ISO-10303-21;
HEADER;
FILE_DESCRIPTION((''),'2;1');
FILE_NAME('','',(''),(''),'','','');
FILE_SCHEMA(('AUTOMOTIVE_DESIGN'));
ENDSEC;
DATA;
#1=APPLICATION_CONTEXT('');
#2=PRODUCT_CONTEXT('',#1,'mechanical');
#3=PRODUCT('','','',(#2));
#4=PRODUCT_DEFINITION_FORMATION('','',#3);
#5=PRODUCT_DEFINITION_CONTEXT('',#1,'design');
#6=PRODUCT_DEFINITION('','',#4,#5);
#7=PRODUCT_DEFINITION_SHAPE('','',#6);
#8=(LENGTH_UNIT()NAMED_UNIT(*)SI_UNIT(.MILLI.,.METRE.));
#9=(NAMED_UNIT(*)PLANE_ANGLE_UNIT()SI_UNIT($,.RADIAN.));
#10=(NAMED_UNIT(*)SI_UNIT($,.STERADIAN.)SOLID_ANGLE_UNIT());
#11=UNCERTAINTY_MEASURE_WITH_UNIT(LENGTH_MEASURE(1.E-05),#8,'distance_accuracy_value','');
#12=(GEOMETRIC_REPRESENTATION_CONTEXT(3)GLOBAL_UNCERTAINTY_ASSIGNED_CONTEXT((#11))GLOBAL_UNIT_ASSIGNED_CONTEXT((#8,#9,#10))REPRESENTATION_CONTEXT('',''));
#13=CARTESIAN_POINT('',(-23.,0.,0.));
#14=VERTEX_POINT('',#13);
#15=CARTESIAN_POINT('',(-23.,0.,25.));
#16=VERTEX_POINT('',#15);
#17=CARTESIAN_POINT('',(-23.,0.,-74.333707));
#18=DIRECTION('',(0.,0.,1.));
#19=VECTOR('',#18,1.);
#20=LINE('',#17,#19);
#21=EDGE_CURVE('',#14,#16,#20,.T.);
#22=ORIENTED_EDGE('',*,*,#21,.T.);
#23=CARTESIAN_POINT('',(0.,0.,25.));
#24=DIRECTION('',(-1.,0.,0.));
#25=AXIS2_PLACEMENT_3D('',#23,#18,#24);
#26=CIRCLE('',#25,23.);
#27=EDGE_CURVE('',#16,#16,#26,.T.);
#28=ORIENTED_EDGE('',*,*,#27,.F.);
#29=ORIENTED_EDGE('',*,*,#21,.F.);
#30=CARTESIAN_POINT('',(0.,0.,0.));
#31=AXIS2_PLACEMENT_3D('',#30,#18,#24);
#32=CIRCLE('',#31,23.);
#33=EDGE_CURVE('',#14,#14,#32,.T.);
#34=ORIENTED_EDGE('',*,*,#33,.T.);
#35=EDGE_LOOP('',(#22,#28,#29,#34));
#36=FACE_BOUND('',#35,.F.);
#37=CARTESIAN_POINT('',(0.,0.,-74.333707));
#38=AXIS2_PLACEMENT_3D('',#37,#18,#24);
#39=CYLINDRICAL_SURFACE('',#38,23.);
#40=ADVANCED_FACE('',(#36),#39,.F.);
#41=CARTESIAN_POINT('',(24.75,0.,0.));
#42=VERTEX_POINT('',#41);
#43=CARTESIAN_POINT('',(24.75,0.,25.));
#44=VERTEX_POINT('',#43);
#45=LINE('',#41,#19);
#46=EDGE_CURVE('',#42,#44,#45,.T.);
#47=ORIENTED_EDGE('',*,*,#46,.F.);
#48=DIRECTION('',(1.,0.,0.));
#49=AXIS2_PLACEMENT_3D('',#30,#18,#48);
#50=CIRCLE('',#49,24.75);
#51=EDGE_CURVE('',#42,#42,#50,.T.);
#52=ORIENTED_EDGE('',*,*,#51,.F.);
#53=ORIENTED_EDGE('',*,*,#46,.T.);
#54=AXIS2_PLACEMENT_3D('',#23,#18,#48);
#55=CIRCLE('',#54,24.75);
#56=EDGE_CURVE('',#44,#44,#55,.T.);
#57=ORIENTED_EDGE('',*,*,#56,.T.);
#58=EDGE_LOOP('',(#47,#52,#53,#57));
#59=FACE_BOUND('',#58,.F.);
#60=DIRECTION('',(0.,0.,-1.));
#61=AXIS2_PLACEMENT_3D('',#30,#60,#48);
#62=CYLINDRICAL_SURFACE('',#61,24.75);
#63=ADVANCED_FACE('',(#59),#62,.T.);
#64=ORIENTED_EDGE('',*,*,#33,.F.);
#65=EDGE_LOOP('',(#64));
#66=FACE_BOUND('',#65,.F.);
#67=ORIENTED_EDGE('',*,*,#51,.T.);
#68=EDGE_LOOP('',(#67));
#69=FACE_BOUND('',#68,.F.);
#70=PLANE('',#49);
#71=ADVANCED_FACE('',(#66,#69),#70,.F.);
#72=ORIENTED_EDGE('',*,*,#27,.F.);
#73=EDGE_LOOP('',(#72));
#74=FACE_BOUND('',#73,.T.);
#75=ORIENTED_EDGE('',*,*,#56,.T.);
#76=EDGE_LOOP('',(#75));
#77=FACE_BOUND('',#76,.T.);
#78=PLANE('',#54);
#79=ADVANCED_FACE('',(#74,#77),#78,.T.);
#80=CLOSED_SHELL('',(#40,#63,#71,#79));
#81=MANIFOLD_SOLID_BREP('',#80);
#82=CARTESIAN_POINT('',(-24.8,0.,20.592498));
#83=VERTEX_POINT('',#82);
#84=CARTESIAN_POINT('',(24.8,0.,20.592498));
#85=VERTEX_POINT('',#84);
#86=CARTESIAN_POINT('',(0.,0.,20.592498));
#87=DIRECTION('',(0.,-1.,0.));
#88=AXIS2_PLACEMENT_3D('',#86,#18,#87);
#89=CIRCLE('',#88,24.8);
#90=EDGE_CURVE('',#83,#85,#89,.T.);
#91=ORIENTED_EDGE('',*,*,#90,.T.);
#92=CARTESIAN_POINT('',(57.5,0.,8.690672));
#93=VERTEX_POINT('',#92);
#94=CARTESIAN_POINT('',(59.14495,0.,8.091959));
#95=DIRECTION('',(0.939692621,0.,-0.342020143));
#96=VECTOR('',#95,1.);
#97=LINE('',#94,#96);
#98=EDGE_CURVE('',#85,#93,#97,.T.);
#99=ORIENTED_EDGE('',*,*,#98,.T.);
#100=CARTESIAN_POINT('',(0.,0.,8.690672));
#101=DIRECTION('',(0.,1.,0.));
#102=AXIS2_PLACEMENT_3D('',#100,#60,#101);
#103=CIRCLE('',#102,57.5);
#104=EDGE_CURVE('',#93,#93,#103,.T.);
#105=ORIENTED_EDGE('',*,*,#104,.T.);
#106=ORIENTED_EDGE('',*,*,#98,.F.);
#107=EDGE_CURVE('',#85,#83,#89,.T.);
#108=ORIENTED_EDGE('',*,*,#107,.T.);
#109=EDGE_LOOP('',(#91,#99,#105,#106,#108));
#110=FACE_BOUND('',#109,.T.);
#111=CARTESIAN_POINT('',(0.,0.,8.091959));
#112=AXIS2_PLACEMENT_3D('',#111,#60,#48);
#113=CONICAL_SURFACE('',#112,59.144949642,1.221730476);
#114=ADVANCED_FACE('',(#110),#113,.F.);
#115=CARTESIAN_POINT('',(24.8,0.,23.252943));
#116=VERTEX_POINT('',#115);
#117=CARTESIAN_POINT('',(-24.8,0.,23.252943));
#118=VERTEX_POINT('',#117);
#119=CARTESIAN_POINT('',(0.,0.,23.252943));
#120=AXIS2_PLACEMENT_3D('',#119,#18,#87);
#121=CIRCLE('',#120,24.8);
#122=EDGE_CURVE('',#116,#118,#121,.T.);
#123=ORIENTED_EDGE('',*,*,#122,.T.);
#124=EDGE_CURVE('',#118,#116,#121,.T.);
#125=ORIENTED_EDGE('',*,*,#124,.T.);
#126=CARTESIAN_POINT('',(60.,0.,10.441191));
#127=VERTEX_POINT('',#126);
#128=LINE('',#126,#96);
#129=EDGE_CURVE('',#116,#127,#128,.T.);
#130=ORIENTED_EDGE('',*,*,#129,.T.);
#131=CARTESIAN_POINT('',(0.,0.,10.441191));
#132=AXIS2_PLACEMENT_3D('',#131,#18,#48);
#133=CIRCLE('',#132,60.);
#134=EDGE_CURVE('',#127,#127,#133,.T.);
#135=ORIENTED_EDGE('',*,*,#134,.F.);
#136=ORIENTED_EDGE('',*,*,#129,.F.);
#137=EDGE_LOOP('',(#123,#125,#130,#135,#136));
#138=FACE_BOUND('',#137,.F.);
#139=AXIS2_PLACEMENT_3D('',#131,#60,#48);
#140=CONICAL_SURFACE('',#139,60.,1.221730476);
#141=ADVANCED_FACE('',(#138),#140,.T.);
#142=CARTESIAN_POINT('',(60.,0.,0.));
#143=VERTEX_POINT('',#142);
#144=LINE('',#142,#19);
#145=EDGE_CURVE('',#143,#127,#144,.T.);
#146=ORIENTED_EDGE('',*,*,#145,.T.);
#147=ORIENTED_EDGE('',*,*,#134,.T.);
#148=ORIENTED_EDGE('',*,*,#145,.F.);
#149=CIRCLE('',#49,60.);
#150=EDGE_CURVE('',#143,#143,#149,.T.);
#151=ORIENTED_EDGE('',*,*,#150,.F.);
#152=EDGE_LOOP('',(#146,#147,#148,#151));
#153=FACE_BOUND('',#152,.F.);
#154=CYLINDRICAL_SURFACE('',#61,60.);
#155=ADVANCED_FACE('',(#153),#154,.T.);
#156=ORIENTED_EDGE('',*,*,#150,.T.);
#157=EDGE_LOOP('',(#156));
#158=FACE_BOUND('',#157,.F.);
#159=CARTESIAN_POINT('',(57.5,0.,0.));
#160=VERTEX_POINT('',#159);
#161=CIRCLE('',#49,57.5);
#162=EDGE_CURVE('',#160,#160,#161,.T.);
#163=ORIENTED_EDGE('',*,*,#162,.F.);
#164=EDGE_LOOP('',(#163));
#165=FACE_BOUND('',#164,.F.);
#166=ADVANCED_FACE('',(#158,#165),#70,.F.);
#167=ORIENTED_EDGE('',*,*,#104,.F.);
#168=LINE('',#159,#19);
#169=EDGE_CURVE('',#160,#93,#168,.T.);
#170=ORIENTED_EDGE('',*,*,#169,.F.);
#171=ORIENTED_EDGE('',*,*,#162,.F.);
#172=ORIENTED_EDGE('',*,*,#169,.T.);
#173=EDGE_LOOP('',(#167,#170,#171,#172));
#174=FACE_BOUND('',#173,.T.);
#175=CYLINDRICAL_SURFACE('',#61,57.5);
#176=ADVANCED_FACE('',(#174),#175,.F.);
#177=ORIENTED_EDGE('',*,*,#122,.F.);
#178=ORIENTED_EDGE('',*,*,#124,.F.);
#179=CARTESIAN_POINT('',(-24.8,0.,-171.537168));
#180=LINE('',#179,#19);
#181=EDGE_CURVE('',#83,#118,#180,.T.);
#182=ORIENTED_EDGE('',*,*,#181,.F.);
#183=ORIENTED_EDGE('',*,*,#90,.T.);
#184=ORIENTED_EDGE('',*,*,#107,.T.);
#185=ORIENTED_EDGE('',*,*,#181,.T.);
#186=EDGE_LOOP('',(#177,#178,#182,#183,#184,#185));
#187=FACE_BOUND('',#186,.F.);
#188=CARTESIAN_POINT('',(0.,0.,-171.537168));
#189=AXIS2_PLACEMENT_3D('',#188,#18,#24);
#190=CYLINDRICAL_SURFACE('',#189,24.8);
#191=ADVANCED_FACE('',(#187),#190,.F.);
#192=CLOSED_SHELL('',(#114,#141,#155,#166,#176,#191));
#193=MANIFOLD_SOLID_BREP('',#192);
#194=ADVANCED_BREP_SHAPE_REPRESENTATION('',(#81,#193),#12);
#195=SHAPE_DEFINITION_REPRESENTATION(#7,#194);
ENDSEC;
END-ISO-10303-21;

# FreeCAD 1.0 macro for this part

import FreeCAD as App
import Part
import Sketcher
Q = App.Units.Quantity


def edges_at(feature, points):
    """Names of the edges that pass closest to the given points."""
    edges = feature.Shape.Edges
    near = lambda p: min(range(len(edges)), key=lambda i: edges[i].distToShape(Part.Vertex(*p))[0])
    return sorted({f"Edge{near(p) + 1}" for p in points})


def faces_at(feature, points):
    """Names of the faces that lie closest to the given points."""
    faces = feature.Shape.Faces
    near = lambda p: min(range(len(faces)), key=lambda i: faces[i].distToShape(Part.Vertex(*p))[0])
    return sorted({f"Face{near(p) + 1}" for p in points})

doc = App.newDocument("Part")
body = doc.addObject("PartDesign::Body", "Body")

# Sketch on XY plane
sketch1 = body.newObject("Sketcher::SketchObject", "Sketch")
sketch1.AttachmentSupport = (doc.getObject("XY_Plane"), [""])
sketch1.MapMode = "FlatFace"
sketch1.addGeometry(Part.Circle(App.Vector(0, 0, 0), App.Vector(0, 0, 1), 60), False)
sketch1.addConstraint(Sketcher.Constraint("Coincident", 0, 3, -1, 1))
sketch1.addConstraint(Sketcher.Constraint("Diameter", 0, Q("120 mm")))
pad1 = body.newObject("PartDesign::Pad", "Pad")
pad1.Profile = sketch1
pad1.Length = 25
doc.recompute()

chamfer = body.newObject("PartDesign::Chamfer", "Chamfer")
chamfer.Base = (pad1, edges_at(pad1, [(-60, 0, 25)]))
chamfer.ChamferType = "Two distances"
chamfer.Size = 40
chamfer.Size2 = 14.558809
chamfer.FlipDirection = True
doc.recompute()

thickness = body.newObject("PartDesign::Thickness", "Thickness")
thickness.Base = (chamfer, faces_at(chamfer, [(0, 0, 0)]))
thickness.Value = 2.5
thickness.Reversed = True
thickness.Join = "Arc"

# Sketch on XY plane
sketch2 = body.newObject("Sketcher::SketchObject", "Sketch001")
sketch2.AttachmentSupport = (doc.getObject("XY_Plane"), [""])
sketch2.MapMode = "FlatFace"
sketch2.addGeometry(Part.Circle(App.Vector(0, 0, 0), App.Vector(0, 0, 1), 25), False)
sketch2.addConstraint(Sketcher.Constraint("Coincident", 0, 3, -1, 1))
sketch2.addConstraint(Sketcher.Constraint("Diameter", 0, Q("49.6 mm")))
doc.recompute()
hole = body.newObject("PartDesign::Hole", "Hole")
hole.Profile = sketch2
hole.ThreadType = "None"
hole.Diameter = 49.6
hole.DepthType = "ThroughAll"
hole.Reversed = True
body2 = doc.addObject("PartDesign::Body", "Body001")

# Sketch on XY plane
sketch3 = body2.newObject("Sketcher::SketchObject", "Sketch002")
sketch3.AttachmentSupport = (doc.getObject("XY_Plane001"), [""])
sketch3.MapMode = "FlatFace"
sketch3.addGeometry(Part.Circle(App.Vector(0, 0, 0), App.Vector(0, 0, 1), 25), False)
sketch3.addConstraint(Sketcher.Constraint("Coincident", 0, 3, -1, 1))
sketch3.addConstraint(Sketcher.Constraint("Diameter", 0, Q("49.5 mm")))
pad2 = body2.newObject("PartDesign::Pad", "Pad001")
pad2.Profile = sketch3
pad2.Length = 25

# Sketch on XY plane
sketch4 = body2.newObject("Sketcher::SketchObject", "Sketch003")
sketch4.AttachmentSupport = (doc.getObject("XY_Plane001"), [""])
sketch4.MapMode = "FlatFace"
sketch4.addGeometry(Part.Circle(App.Vector(0, 0, 0), App.Vector(0, 0, 1), 23), False)
sketch4.addConstraint(Sketcher.Constraint("Coincident", 0, 3, -1, 1))
sketch4.addConstraint(Sketcher.Constraint("Diameter", 0, Q("46 mm")))
doc.recompute()
hole2 = body2.newObject("PartDesign::Hole", "Hole001")
hole2.Profile = sketch4
hole2.ThreadType = "None"
hole2.Diameter = 46
hole2.DepthType = "ThroughAll"
hole2.Reversed = True

doc.recompute()
